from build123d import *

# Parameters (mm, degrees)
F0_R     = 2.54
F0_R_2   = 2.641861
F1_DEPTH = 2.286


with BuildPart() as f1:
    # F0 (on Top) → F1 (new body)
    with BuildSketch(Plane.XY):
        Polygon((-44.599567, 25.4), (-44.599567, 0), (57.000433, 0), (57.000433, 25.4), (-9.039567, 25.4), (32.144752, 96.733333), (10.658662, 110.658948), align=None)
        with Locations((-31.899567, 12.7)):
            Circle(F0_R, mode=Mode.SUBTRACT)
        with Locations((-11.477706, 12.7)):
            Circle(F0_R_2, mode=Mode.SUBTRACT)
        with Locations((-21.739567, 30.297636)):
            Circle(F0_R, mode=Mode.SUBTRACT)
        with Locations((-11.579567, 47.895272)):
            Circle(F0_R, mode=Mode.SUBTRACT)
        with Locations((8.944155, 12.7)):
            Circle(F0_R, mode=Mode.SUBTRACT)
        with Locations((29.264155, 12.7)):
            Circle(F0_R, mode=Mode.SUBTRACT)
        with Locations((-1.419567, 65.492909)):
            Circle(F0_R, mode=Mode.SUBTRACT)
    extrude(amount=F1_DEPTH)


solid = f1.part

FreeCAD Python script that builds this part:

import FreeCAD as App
import Part
import Sketcher

V = App.Vector
Q = App.Units.Quantity

doc = App.newDocument("Part")
body = doc.addObject("PartDesign::Body", "Body")

# Sketch on XY plane
sketch1 = body.newObject("Sketcher::SketchObject", "Sketch")
sketch1.AttachmentSupport = (doc.getObject("XY_Plane"), [""])
sketch1.MapMode = "FlatFace"
sketch1.addGeometry(Part.LineSegment(V(-44.599567, 25.4, 0), V(-44.599567, 0, 0)), False)
sketch1.addGeometry(Part.LineSegment(V(-44.599567, 0, 0), V(57.000433, 0, 0)), False)
sketch1.addGeometry(Part.LineSegment(V(57.000433, 0, 0), V(57.000433, 25.4, 0)), False)
sketch1.addGeometry(Part.LineSegment(V(57.000433, 25.4, 0), V(-9.039567, 25.4, 0)), False)
sketch1.addGeometry(Part.LineSegment(V(-9.039567, 25.4, 0), V(32.144752, 96.733333, 0)), False)
sketch1.addGeometry(Part.LineSegment(V(32.144752, 96.733333, 0), V(10.658662, 110.658948, 0)), False)
sketch1.addGeometry(Part.LineSegment(V(10.658662, 110.658948, 0), V(-44.599567, 25.4, 0)), False)
sketch1.addGeometry(Part.Circle(V(-31.899567, 12.7, 0), V(0, 0, 1), 2.54), False)
sketch1.addGeometry(Part.Circle(V(-11.477706, 12.7, 0), V(0, 0, 1), 2.641861), False)
sketch1.addGeometry(Part.Circle(V(-21.739567, 30.297636, 0), V(0, 0, 1), 2.54), False)
sketch1.addGeometry(Part.Circle(V(8.944155, 12.7, 0), V(0, 0, 1), 2.54), False)
sketch1.addGeometry(Part.Circle(V(29.264155, 12.7, 0), V(0, 0, 1), 2.54), False)
sketch1.addGeometry(Part.Circle(V(-11.579567, 47.895272, 0), V(0, 0, 1), 2.54), False)
sketch1.addGeometry(Part.Circle(V(-1.419567, 65.492909, 0), V(0, 0, 1), 2.54), False)
sketch1.addConstraint(Sketcher.Constraint("Coincident", 0, 2, 1, 1))
sketch1.addConstraint(Sketcher.Constraint("Coincident", 1, 2, 2, 1))
sketch1.addConstraint(Sketcher.Constraint("Coincident", 2, 2, 3, 1))
sketch1.addConstraint(Sketcher.Constraint("Coincident", 3, 2, 4, 1))
sketch1.addConstraint(Sketcher.Constraint("Coincident", 4, 2, 5, 1))
sketch1.addConstraint(Sketcher.Constraint("Coincident", 5, 2, 6, 1))
sketch1.addConstraint(Sketcher.Constraint("Coincident", 6, 2, 0, 1))
sketch1.addConstraint(Sketcher.Constraint("Vertical", 0))
sketch1.addConstraint(Sketcher.Constraint("Horizontal", 1))
sketch1.addConstraint(Sketcher.Constraint("Vertical", 2))
sketch1.addConstraint(Sketcher.Constraint("Horizontal", 3))
sketch1.addConstraint(Sketcher.Constraint("Equal", 7, 9))
sketch1.addConstraint(Sketcher.Constraint("Equal", 9, 10))
sketch1.addConstraint(Sketcher.Constraint("Equal", 10, 11))
sketch1.addConstraint(Sketcher.Constraint("Equal", 11, 12))
sketch1.addConstraint(Sketcher.Constraint("Equal", 12, 13))
sketch1.addConstraint(Sketcher.Constraint("PointOnObject", 0, 2, -1))
sketch1.addConstraint(Sketcher.Constraint("Perpendicular", 5, 6))
sketch1.addConstraint(Sketcher.Constraint("Horizontal", 7, 3, 8, 3))
sketch1.addConstraint(Sketcher.Constraint("Horizontal", 8, 3, 10, 3))
sketch1.addConstraint(Sketcher.Constraint("Horizontal", 10, 3, 11, 3))
sketch1.addConstraint(Sketcher.Constraint("Horizontal", 3, 2, 6, 2))
sketch1.addConstraint(Sketcher.Constraint("Diameter", 7, Q("0.2 in")))
sketch1.addConstraint(Sketcher.Constraint("DistanceX", 1, 1, 1, 2, Q("4 in")))
sketch1.addConstraint(Sketcher.Constraint("DistanceY", 0, 2, 0, 1, Q("1 in")))
sketch1.addConstraint(Sketcher.Constraint("Distance", 6, Q("4 in")))
sketch1.addConstraint(Sketcher.Constraint("DistanceX", 3, 2, 3, 1, Q("2.6 in")))
sketch1.addConstraint(Sketcher.Constraint("Angle", 4, Q("60 deg")))
sketch1.addConstraint(Sketcher.Constraint("DistanceY", -1, 1, 7, 3, Q("0.5 in")))
sketch1.addConstraint(Sketcher.Constraint("DistanceX", 7, 3, 9, 3, Q("0.4 in")))
sketch1.addConstraint(Sketcher.Constraint("DistanceX", 10, 3, 11, 3, Q("0.8 in")))
sketch1.addConstraint(Sketcher.Constraint("DistanceX", 9, 3, 12, 3, Q("0.4 in")))
sketch1.addConstraint(Sketcher.Constraint("DistanceX", 12, 3, 13, 3, Q("0.4 in")))
sketch1.addConstraint(Sketcher.Constraint("DistanceX", 0, 2, 7, 3, Q("0.5 in")))
sketch1.addConstraint(Sketcher.Constraint("Diameter", 8, 5.283722))
sketch1.addConstraint(Sketcher.Constraint("Distance", 4, 82.368638))
sketch1.addConstraint(Sketcher.Constraint("DistanceY", -1, 1, 13, 3, 65.492909))
sketch1.addConstraint(Sketcher.Constraint("DistanceX", -1, 1, 4, 2, 32.144752))
sketch1.addConstraint(Sketcher.Constraint("DistanceX", 7, 3, 8, 3, 20.421861))
sketch1.addConstraint(Sketcher.Constraint("DistanceX", 8, 3, 10, 3, 20.421861))
sketch1.addConstraint(Sketcher.Constraint("DistanceY", 3, 2, 12, 3, 22.495272))
sketch1.addConstraint(Sketcher.Constraint("DistanceY", 9, 3, 5, 2, 80.361312))
pad1 = body.newObject("PartDesign::Pad", "Pad")
pad1.Profile = sketch1
pad1.Length = Q("0.09 in")

doc.recompute()
